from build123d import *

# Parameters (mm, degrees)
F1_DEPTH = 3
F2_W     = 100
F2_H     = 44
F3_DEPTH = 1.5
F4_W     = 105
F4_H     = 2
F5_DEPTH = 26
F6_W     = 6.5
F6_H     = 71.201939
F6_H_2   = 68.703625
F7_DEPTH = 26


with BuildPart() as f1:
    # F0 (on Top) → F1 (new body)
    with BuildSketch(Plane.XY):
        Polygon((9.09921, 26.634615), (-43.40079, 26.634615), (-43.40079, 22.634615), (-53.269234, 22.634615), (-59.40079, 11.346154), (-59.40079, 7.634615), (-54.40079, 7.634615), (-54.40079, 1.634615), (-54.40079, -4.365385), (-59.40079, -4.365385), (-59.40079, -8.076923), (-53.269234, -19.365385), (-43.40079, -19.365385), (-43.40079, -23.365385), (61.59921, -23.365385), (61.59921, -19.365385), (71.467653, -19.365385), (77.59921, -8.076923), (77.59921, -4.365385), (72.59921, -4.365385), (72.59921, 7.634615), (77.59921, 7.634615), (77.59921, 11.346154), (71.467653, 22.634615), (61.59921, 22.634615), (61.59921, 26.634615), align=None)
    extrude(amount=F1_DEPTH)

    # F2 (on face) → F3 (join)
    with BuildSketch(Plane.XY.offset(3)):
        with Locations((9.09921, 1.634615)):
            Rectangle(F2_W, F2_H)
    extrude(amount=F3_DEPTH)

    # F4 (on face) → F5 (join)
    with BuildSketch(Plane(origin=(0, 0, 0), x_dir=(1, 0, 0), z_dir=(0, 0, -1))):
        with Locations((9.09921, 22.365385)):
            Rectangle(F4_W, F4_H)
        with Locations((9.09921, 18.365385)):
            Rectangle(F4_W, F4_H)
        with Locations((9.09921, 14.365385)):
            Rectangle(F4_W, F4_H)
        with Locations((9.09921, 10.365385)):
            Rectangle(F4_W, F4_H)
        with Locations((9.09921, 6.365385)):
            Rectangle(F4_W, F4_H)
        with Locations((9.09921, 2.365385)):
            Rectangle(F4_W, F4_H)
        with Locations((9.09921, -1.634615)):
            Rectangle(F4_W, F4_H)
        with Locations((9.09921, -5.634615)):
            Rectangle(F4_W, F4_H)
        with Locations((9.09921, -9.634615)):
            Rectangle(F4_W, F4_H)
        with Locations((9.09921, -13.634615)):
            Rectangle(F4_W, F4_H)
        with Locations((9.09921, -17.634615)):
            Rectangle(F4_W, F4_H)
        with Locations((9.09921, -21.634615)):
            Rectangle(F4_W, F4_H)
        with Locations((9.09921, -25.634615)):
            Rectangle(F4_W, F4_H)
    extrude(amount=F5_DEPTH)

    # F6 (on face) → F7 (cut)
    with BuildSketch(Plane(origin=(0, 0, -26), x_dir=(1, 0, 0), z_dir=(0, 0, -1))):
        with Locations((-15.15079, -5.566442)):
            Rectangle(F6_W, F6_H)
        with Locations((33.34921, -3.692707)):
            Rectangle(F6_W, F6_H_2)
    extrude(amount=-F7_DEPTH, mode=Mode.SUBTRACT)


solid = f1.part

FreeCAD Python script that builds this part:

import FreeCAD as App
import Part
import Sketcher

V = App.Vector
Q = App.Units.Quantity


def add_polygon(sketch, points):
    """Adds a closed chain of lines whose ends are joined by coincident constraints."""
    first, n = sketch.GeometryCount, len(points)
    for a, b in zip(points, points[1:] + points[:1]):
        sketch.addGeometry(Part.LineSegment(App.Vector(*a, 0), App.Vector(*b, 0)), False)
    for i in range(n):
        sketch.addConstraint(Sketcher.Constraint("Coincident", first + i, 2, first + (i + 1) % n, 1))

doc = App.newDocument("Part")
body = doc.addObject("PartDesign::Body", "Body")

# Sketch on XY plane
sketch1 = body.newObject("Sketcher::SketchObject", "Sketch")
sketch1.AttachmentSupport = (doc.getObject("XY_Plane"), [""])
sketch1.MapMode = "FlatFace"
add_polygon(sketch1, [(-43.4, 26.6), (-43.4, 22.6), (-53.3, 22.6), (-59.4, 11.3), (-59.4, 7.6), (-54.4, 7.6), (-54.4, -4.4), (-59.4, -4.4), (-59.4, -8.1), (-53.3, -19.4), (-43.4, -19.4), (-43.4, -23.4), (61.6, -23.4), (61.6, -19.4), (71.5, -19.4), (77.6, -8.1), (77.6, -4.4), (72.6, -4.4), (72.6, 7.6), (77.6, 7.6), (77.6, 11.3), (71.5, 22.6), (61.6, 22.6), (61.6, 26.6)])  # lines 0-23
sketch1.addConstraint(Sketcher.Constraint("Vertical", 0))
sketch1.addConstraint(Sketcher.Constraint("Horizontal", 1))
sketch1.addConstraint(Sketcher.Constraint("Vertical", 3))
sketch1.addConstraint(Sketcher.Constraint("Horizontal", 4))
sketch1.addConstraint(Sketcher.Constraint("Vertical", 5))
sketch1.addConstraint(Sketcher.Constraint("Horizontal", 6))
sketch1.addConstraint(Sketcher.Constraint("Vertical", 7))
sketch1.addConstraint(Sketcher.Constraint("Horizontal", 9))
sketch1.addConstraint(Sketcher.Constraint("Vertical", 10))
sketch1.addConstraint(Sketcher.Constraint("Horizontal", 11))
sketch1.addConstraint(Sketcher.Constraint("Vertical", 12))
sketch1.addConstraint(Sketcher.Constraint("Horizontal", 13))
sketch1.addConstraint(Sketcher.Constraint("Vertical", 15))
sketch1.addConstraint(Sketcher.Constraint("Horizontal", 16))
sketch1.addConstraint(Sketcher.Constraint("Vertical", 17))
sketch1.addConstraint(Sketcher.Constraint("Horizontal", 18))
sketch1.addConstraint(Sketcher.Constraint("Vertical", 19))
sketch1.addConstraint(Sketcher.Constraint("Horizontal", 21))
sketch1.addConstraint(Sketcher.Constraint("Vertical", 22))
sketch1.addConstraint(Sketcher.Constraint("Horizontal", 23))
sketch1.addConstraint(Sketcher.Constraint("Parallel", 2, 14))
sketch1.addConstraint(Sketcher.Constraint("Parallel", 8, 20))
sketch1.addConstraint(Sketcher.Constraint("Horizontal", 9, 2, 12, 2))
sketch1.addConstraint(Sketcher.Constraint("Horizontal", 7, 2, 14, 2))
sketch1.addConstraint(Sketcher.Constraint("Horizontal", 6, 2, 15, 2))
sketch1.addConstraint(Sketcher.Constraint("Horizontal", 4, 2, 17, 2))
sketch1.addConstraint(Sketcher.Constraint("Horizontal", 2, 2, 19, 2))
sketch1.addConstraint(Sketcher.Constraint("Horizontal", 1, 2, 20, 2))
sketch1.addConstraint(Sketcher.Constraint("Vertical", 3, 2, 6, 2))
sketch1.addConstraint(Sketcher.Constraint("Vertical", 1, 2, 8, 2))
sketch1.addConstraint(Sketcher.Constraint("Vertical", 0, 2, 9, 2))
sketch1.addConstraint(Sketcher.Constraint("Vertical", 15, 2, 18, 2))
sketch1.addConstraint(Sketcher.Constraint("Vertical", 13, 2, 20, 2))
sketch1.addConstraint(Sketcher.Constraint("Vertical", 12, 2, 21, 2))
sketch1.addConstraint(Sketcher.Constraint("Equal", 9, 13))
sketch1.addConstraint(Sketcher.Constraint("Equal", 6, 16))
sketch1.addConstraint(Sketcher.Constraint("Equal", 3, 7))
sketch1.addConstraint(Sketcher.Constraint("Equal", 0, 10))
sketch1.addConstraint(Sketcher.Constraint("DistanceX", 4, 1, 4, 2, Q("5 mm")))
sketch1.addConstraint(Sketcher.Constraint("DistanceX", 11, 1, 11, 2, Q("105 mm")))
sketch1.addConstraint(Sketcher.Constraint("DistanceY", 0, 2, 0, 1, Q("4 mm")))
sketch1.addConstraint(Sketcher.Constraint("DistanceY", 5, 2, 5, 1, Q("12 mm")))
sketch1.addConstraint(Sketcher.Constraint("DistanceX", 2, 2, 0, 2, Q("16 mm")))
sketch1.addConstraint(Sketcher.Constraint("DistanceY", 3, 2, 1, 2, Q("15 mm")))
sketch1.addConstraint(Sketcher.Constraint("DistanceY", 3, 2, 3, 1, Q("3.711539 mm")))
sketch1.addConstraint(Sketcher.Constraint("Distance", 2, Q("12.846219 mm")))
sketch1.addConstraint(Sketcher.Constraint("DistanceX", 0, 2, -1, 1, Q("43.40079 mm")))
sketch1.addConstraint(Sketcher.Constraint("DistanceY", -1, 1, 0, 2, Q("22.634615 mm")))
pad1 = body.newObject("PartDesign::Pad", "Pad")
pad1.Profile = sketch1
pad1.Length = 3

# Sketch on XY plane
sketch2 = body.newObject("Sketcher::SketchObject", "Sketch001")
sketch2.AttachmentSupport = (doc.getObject("XY_Plane"), [""])
sketch2.MapMode = "FlatFace"
sketch2.AttachmentOffset = App.Placement(V(0, 0, 3), App.Rotation())
add_polygon(sketch2, [(-41, 24), (-41, -20), (59, -20), (59, 24)])  # lines 0-3
sketch2.addConstraint(Sketcher.Constraint("Vertical", 0))
sketch2.addConstraint(Sketcher.Constraint("Horizontal", 1))
sketch2.addConstraint(Sketcher.Constraint("Vertical", 2))
sketch2.addConstraint(Sketcher.Constraint("Horizontal", 3))
sketch2.addConstraint(Sketcher.Constraint("DistanceX", 1, 1, 1, 2, Q("100 mm")))
sketch2.addConstraint(Sketcher.Constraint("DistanceY", 0, 2, 0, 1, Q("44 mm")))
sketch2.addConstraint(Sketcher.Constraint("DistanceX", 0, 2, -1, 1, Q("40.90079 mm")))
sketch2.addConstraint(Sketcher.Constraint("DistanceY", 0, 2, -1, 1, Q("20.365385 mm")))
pad2 = body.newObject("PartDesign::Pad", "Pad001")
pad2.Profile = sketch2
pad2.Length = 1.5

# Sketch on XY plane
sketch3 = body.newObject("Sketcher::SketchObject", "Sketch002")
sketch3.AttachmentSupport = (doc.getObject("XY_Plane"), [""])
sketch3.MapMode = "FlatFace"
add_polygon(sketch3, [(-43.4, -23.4), (-43.4, -21.4), (61.6, -21.4), (61.6, -23.4)])  # lines 0-3
add_polygon(sketch3, [(-43.4, -19.4), (-43.4, -17.4), (61.6, -17.4), (61.6, -19.4)])  # lines 4-7
add_polygon(sketch3, [(-43.4, -15.4), (-43.4, -13.4), (61.6, -13.4), (61.6, -15.4)])  # lines 8-11
add_polygon(sketch3, [(-43.4, -11.4), (-43.4, -9.4), (61.6, -9.4), (61.6, -11.4)])  # lines 12-15
add_polygon(sketch3, [(-43.4, -7.4), (-43.4, -5.4), (61.6, -5.4), (61.6, -7.4)])  # lines 16-19
add_polygon(sketch3, [(-43.4, -3.4), (-43.4, -1.4), (61.6, -1.4), (61.6, -3.4)])  # lines 20-23
add_polygon(sketch3, [(-43.4, 0.6), (-43.4, 2.6), (61.6, 2.6), (61.6, 0.6)])  # lines 24-27
add_polygon(sketch3, [(-43.4, 4.6), (-43.4, 6.6), (61.6, 6.6), (61.6, 4.6)])  # lines 28-31
add_polygon(sketch3, [(-43.4, 8.6), (-43.4, 10.6), (61.6, 10.6), (61.6, 8.6)])  # lines 32-35
add_polygon(sketch3, [(-43.4, 12.6), (-43.4, 14.6), (61.6, 14.6), (61.6, 12.6)])  # lines 36-39
add_polygon(sketch3, [(-43.4, 16.6), (-43.4, 18.6), (61.6, 18.6), (61.6, 16.6)])  # lines 40-43
add_polygon(sketch3, [(-43.4, 20.6), (-43.4, 22.6), (61.6, 22.6), (61.6, 20.6)])  # lines 44-47
add_polygon(sketch3, [(-43.4, 24.6), (-43.4, 26.6), (61.6, 26.6), (61.6, 24.6)])  # lines 48-51
sketch3.addConstraint(Sketcher.Constraint("Vertical", 0))
sketch3.addConstraint(Sketcher.Constraint("Horizontal", 1))
sketch3.addConstraint(Sketcher.Constraint("Vertical", 2))
sketch3.addConstraint(Sketcher.Constraint("Horizontal", 3))
sketch3.addConstraint(Sketcher.Constraint("Vertical", 4))
sketch3.addConstraint(Sketcher.Constraint("Horizontal", 5))
sketch3.addConstraint(Sketcher.Constraint("Vertical", 6))
sketch3.addConstraint(Sketcher.Constraint("Horizontal", 7))
sketch3.addConstraint(Sketcher.Constraint("Vertical", 8))
sketch3.addConstraint(Sketcher.Constraint("Horizontal", 9))
sketch3.addConstraint(Sketcher.Constraint("Vertical", 10))
sketch3.addConstraint(Sketcher.Constraint("Horizontal", 11))
sketch3.addConstraint(Sketcher.Constraint("Vertical", 12))
sketch3.addConstraint(Sketcher.Constraint("Horizontal", 13))
sketch3.addConstraint(Sketcher.Constraint("Vertical", 14))
sketch3.addConstraint(Sketcher.Constraint("Horizontal", 15))
sketch3.addConstraint(Sketcher.Constraint("Vertical", 16))
sketch3.addConstraint(Sketcher.Constraint("Horizontal", 17))
sketch3.addConstraint(Sketcher.Constraint("Vertical", 18))
sketch3.addConstraint(Sketcher.Constraint("Horizontal", 19))
sketch3.addConstraint(Sketcher.Constraint("Vertical", 20))
sketch3.addConstraint(Sketcher.Constraint("Horizontal", 21))
sketch3.addConstraint(Sketcher.Constraint("Vertical", 22))
sketch3.addConstraint(Sketcher.Constraint("Horizontal", 23))
sketch3.addConstraint(Sketcher.Constraint("Vertical", 24))
sketch3.addConstraint(Sketcher.Constraint("Horizontal", 25))
sketch3.addConstraint(Sketcher.Constraint("Vertical", 26))
sketch3.addConstraint(Sketcher.Constraint("Horizontal", 27))
sketch3.addConstraint(Sketcher.Constraint("Vertical", 28))
sketch3.addConstraint(Sketcher.Constraint("Horizontal", 29))
sketch3.addConstraint(Sketcher.Constraint("Vertical", 30))
sketch3.addConstraint(Sketcher.Constraint("Horizontal", 31))
sketch3.addConstraint(Sketcher.Constraint("Vertical", 32))
sketch3.addConstraint(Sketcher.Constraint("Horizontal", 33))
sketch3.addConstraint(Sketcher.Constraint("Vertical", 34))
sketch3.addConstraint(Sketcher.Constraint("Horizontal", 35))
sketch3.addConstraint(Sketcher.Constraint("Vertical", 36))
sketch3.addConstraint(Sketcher.Constraint("Horizontal", 37))
sketch3.addConstraint(Sketcher.Constraint("Vertical", 38))
sketch3.addConstraint(Sketcher.Constraint("Horizontal", 39))
sketch3.addConstraint(Sketcher.Constraint("Vertical", 40))
sketch3.addConstraint(Sketcher.Constraint("Horizontal", 41))
sketch3.addConstraint(Sketcher.Constraint("Vertical", 42))
sketch3.addConstraint(Sketcher.Constraint("Horizontal", 43))
sketch3.addConstraint(Sketcher.Constraint("Vertical", 44))
sketch3.addConstraint(Sketcher.Constraint("Horizontal", 45))
sketch3.addConstraint(Sketcher.Constraint("Vertical", 46))
sketch3.addConstraint(Sketcher.Constraint("Horizontal", 47))
sketch3.addConstraint(Sketcher.Constraint("Vertical", 48))
sketch3.addConstraint(Sketcher.Constraint("Horizontal", 49))
sketch3.addConstraint(Sketcher.Constraint("Vertical", 50))
sketch3.addConstraint(Sketcher.Constraint("Horizontal", 51))
sketch3.addConstraint(Sketcher.Constraint("Vertical", 3, 2, 4, 2))
sketch3.addConstraint(Sketcher.Constraint("Vertical", 2, 2, 5, 2))
sketch3.addConstraint(Sketcher.Constraint("Vertical", 7, 2, 8, 2))
sketch3.addConstraint(Sketcher.Constraint("Vertical", 6, 2, 9, 2))
sketch3.addConstraint(Sketcher.Constraint("Vertical", 11, 2, 12, 2))
sketch3.addConstraint(Sketcher.Constraint("Vertical", 10, 2, 13, 2))
sketch3.addConstraint(Sketcher.Constraint("Vertical", 15, 2, 16, 2))
sketch3.addConstraint(Sketcher.Constraint("Vertical", 14, 2, 17, 2))
sketch3.addConstraint(Sketcher.Constraint("Vertical", 19, 2, 20, 2))
sketch3.addConstraint(Sketcher.Constraint("Vertical", 18, 2, 21, 2))
sketch3.addConstraint(Sketcher.Constraint("Vertical", 23, 2, 24, 2))
sketch3.addConstraint(Sketcher.Constraint("Vertical", 22, 2, 25, 2))
sketch3.addConstraint(Sketcher.Constraint("Vertical", 27, 2, 28, 2))
sketch3.addConstraint(Sketcher.Constraint("Vertical", 26, 2, 29, 2))
sketch3.addConstraint(Sketcher.Constraint("Vertical", 31, 2, 32, 2))
sketch3.addConstraint(Sketcher.Constraint("Vertical", 30, 2, 33, 2))
sketch3.addConstraint(Sketcher.Constraint("Vertical", 35, 2, 36, 2))
sketch3.addConstraint(Sketcher.Constraint("Vertical", 34, 2, 37, 2))
sketch3.addConstraint(Sketcher.Constraint("Vertical", 39, 2, 40, 2))
sketch3.addConstraint(Sketcher.Constraint("Vertical", 38, 2, 41, 2))
sketch3.addConstraint(Sketcher.Constraint("Vertical", 43, 2, 44, 2))
sketch3.addConstraint(Sketcher.Constraint("Vertical", 42, 2, 45, 2))
sketch3.addConstraint(Sketcher.Constraint("Vertical", 47, 2, 48, 2))
sketch3.addConstraint(Sketcher.Constraint("Vertical", 46, 2, 49, 2))
sketch3.addConstraint(Sketcher.Constraint("Equal", 2, 4))
sketch3.addConstraint(Sketcher.Constraint("Equal", 6, 8))
sketch3.addConstraint(Sketcher.Constraint("Equal", 10, 12))
sketch3.addConstraint(Sketcher.Constraint("Equal", 14, 16))
sketch3.addConstraint(Sketcher.Constraint("Equal", 18, 20))
sketch3.addConstraint(Sketcher.Constraint("Equal", 22, 24))
sketch3.addConstraint(Sketcher.Constraint("Equal", 26, 28))
sketch3.addConstraint(Sketcher.Constraint("Equal", 30, 32))
sketch3.addConstraint(Sketcher.Constraint("Equal", 34, 36))
sketch3.addConstraint(Sketcher.Constraint("Equal", 38, 40))
sketch3.addConstraint(Sketcher.Constraint("Equal", 42, 44))
sketch3.addConstraint(Sketcher.Constraint("Equal", 46, 48))
sketch3.addConstraint(Sketcher.Constraint("DistanceX", 1, 1, 1, 2, Q("105 mm")))
sketch3.addConstraint(Sketcher.Constraint("DistanceY", 0, 1, 0, 2, Q("2 mm")))
sketch3.addConstraint(Sketcher.Constraint("DistanceY", 0, 2, 4, 2, Q("4 mm")))
sketch3.addConstraint(Sketcher.Constraint("DistanceY", 4, 2, 8, 2, Q("4 mm")))
sketch3.addConstraint(Sketcher.Constraint("DistanceY", 8, 2, 12, 2, Q("4 mm")))
sketch3.addConstraint(Sketcher.Constraint("DistanceY", 12, 2, 16, 2, Q("4 mm")))
sketch3.addConstraint(Sketcher.Constraint("DistanceY", 16, 2, 20, 2, Q("4 mm")))
sketch3.addConstraint(Sketcher.Constraint("DistanceY", 20, 2, 24, 2, Q("4 mm")))
sketch3.addConstraint(Sketcher.Constraint("DistanceY", 24, 2, 28, 2, Q("4 mm")))
sketch3.addConstraint(Sketcher.Constraint("DistanceY", 28, 2, 32, 2, Q("4 mm")))
sketch3.addConstraint(Sketcher.Constraint("DistanceY", 32, 2, 36, 2, Q("4 mm")))
sketch3.addConstraint(Sketcher.Constraint("DistanceY", 36, 2, 40, 2, Q("4 mm")))
sketch3.addConstraint(Sketcher.Constraint("DistanceY", 40, 2, 44, 2, Q("4 mm")))
sketch3.addConstraint(Sketcher.Constraint("DistanceY", 44, 2, 48, 2, Q("4 mm")))
sketch3.addConstraint(Sketcher.Constraint("DistanceX", 0, 2, -1, 1, Q("43.40079 mm")))
sketch3.addConstraint(Sketcher.Constraint("DistanceY", 0, 2, -1, 1, Q("21.365385 mm")))
pad3 = body.newObject("PartDesign::Pad", "Pad002")
pad3.Profile = sketch3
pad3.Length = 26
pad3.Reversed = True

# Sketch on XY plane
sketch4 = body.newObject("Sketcher::SketchObject", "Sketch003")
sketch4.AttachmentSupport = (doc.getObject("XY_Plane"), [""])
sketch4.MapMode = "FlatFace"
sketch4.AttachmentOffset = App.Placement(V(0, 0, -26), App.Rotation())
add_polygon(sketch4, [(-18, -30), (-18, 41), (-12, 41), (-12, -30)])  # lines 0-3
add_polygon(sketch4, [(30, -31), (30, 38), (37, 38), (37, -31)])  # lines 4-7
sketch4.addConstraint(Sketcher.Constraint("Vertical", 0))
sketch4.addConstraint(Sketcher.Constraint("Horizontal", 1))
sketch4.addConstraint(Sketcher.Constraint("Vertical", 2))
sketch4.addConstraint(Sketcher.Constraint("Horizontal", 3))
sketch4.addConstraint(Sketcher.Constraint("Vertical", 4))
sketch4.addConstraint(Sketcher.Constraint("Horizontal", 5))
sketch4.addConstraint(Sketcher.Constraint("Vertical", 6))
sketch4.addConstraint(Sketcher.Constraint("Horizontal", 7))
sketch4.addConstraint(Sketcher.Constraint("Equal", 3, 5))
sketch4.addConstraint(Sketcher.Constraint("DistanceX", 1, 1, 1, 2, Q("6.5 mm")))
sketch4.addConstraint(Sketcher.Constraint("DistanceX", 1, 2, 4, 2, Q("42 mm")))
sketch4.addConstraint(Sketcher.Constraint("DistanceY", 0, 1, 0, 2, Q("71.201939 mm")))
sketch4.addConstraint(Sketcher.Constraint("DistanceY", 4, 1, 4, 2, Q("68.703625 mm")))
sketch4.addConstraint(Sketcher.Constraint("DistanceX", 0, 2, -1, 1, Q("18.40079 mm")))
sketch4.addConstraint(Sketcher.Constraint("DistanceY", -1, 1, 0, 2, Q("41.167412 mm")))
sketch4.addConstraint(Sketcher.Constraint("DistanceY", -1, 1, 4, 2, Q("38.044519 mm")))
pocket1 = body.newObject("PartDesign::Pocket", "Pocket")
pocket1.Profile = sketch4
pocket1.Length = 26
pocket1.Reversed = True

doc.recompute()
